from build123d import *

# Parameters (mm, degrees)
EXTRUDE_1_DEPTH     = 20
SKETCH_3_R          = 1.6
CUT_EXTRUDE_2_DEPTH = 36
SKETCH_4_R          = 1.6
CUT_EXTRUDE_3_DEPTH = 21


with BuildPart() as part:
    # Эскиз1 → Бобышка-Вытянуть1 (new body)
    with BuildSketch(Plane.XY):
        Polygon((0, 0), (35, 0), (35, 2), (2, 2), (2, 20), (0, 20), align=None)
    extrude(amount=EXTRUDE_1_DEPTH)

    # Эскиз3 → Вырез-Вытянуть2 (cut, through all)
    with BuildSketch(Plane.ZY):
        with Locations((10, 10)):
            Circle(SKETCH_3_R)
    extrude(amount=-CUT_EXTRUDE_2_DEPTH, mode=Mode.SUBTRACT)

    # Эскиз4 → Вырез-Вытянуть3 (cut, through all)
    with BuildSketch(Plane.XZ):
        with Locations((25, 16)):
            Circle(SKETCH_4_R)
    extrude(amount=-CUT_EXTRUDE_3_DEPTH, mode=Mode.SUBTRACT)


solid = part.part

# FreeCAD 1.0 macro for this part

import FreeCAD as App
import Part
import Sketcher
from FreeCAD import Vector


def add_polygon(sketch, points):
    """Adds a closed chain of lines whose ends are joined by coincident constraints."""
    first, n = sketch.GeometryCount, len(points)
    for a, b in zip(points, points[1:] + points[:1]):
        sketch.addGeometry(Part.LineSegment(App.Vector(*a, 0), App.Vector(*b, 0)), False)
    for i in range(n):
        sketch.addConstraint(Sketcher.Constraint("Coincident", first + i, 2, first + (i + 1) % n, 1))

doc = App.newDocument("Part")
params = doc.addObject("Spreadsheet::Sheet", "Params")
for row, (alias, value) in enumerate([
    ("sketch1_width", "35 mm"),
    ("sketch1_width2", "33 mm"),
    ("sketch1_height", "18 mm"),
    ("pad1_length", "20 mm"),
    ("sketch2_diameter", "3.2 mm"),
    ("sketch3_diameter", "3.2 mm"),
], start=1):
    params.set(f"A{row}", alias)
    params.set(f"B{row}", "=" + value)
    params.setAlias(f"B{row}", alias)

body = doc.addObject("PartDesign::Body", "Body")

# Sketch on XY plane
sketch1 = doc.addObject("Sketcher::SketchObject", "Sketch")
body.addObject(sketch1)
sketch1.AttachmentSupport = (doc.XY_Plane, [""])
sketch1.MapMode = "FlatFace"
add_polygon(sketch1, [(0, 0), (35, 0), (35, 2), (2, 2), (2, 20), (0, 20)])  # lines 0-5
sketch1.addConstraint([
    Sketcher.Constraint("Horizontal", 0),
    Sketcher.Constraint("Vertical", 1),
    Sketcher.Constraint("Horizontal", 2),
    Sketcher.Constraint("Vertical", 3),
    Sketcher.Constraint("Horizontal", 4),
    Sketcher.Constraint("Vertical", 5),
    Sketcher.Constraint("Coincident", 5, 2, -1, 1),
    Sketcher.Constraint("Equal", 4, 1),
    Sketcher.Constraint("DistanceX", 0, 1, 0, 2, 35.0),
    Sketcher.Constraint("DistanceX", 2, 2, 2, 1, 33.0),
    Sketcher.Constraint("DistanceY", 3, 1, 3, 2, 18.0),
])
sketch1.setExpression("Constraints[14]", "Params.sketch1_width")
sketch1.setExpression("Constraints[15]", "Params.sketch1_width2")
sketch1.setExpression("Constraints[16]", "Params.sketch1_height")
pad1 = doc.addObject("PartDesign::Pad", "Pad")
body.addObject(pad1)
pad1.Profile = sketch1
pad1.setExpression("Length", "Params.pad1_length")

# Sketch on YZ plane
sketch2 = doc.addObject("Sketcher::SketchObject", "Sketch001")
body.addObject(sketch2)
sketch2.AttachmentSupport = (doc.YZ_Plane, [""])
sketch2.MapMode = "FlatFace"
sketch2.addGeometry(Part.Circle(Vector(10, 10, 0), Vector(0, 0, 1), 1.6), False)
sketch2.addConstraint([
    Sketcher.Constraint("Diameter", 0, 3.2),
    Sketcher.Constraint("DistanceX", -1, 1, 0, 3, 10.0),
    Sketcher.Constraint("DistanceY", -1, 1, 0, 3, 10.0),
])
sketch2.setExpression("Constraints[0]", "Params.sketch2_diameter")
pocket1 = doc.addObject("PartDesign::Pocket", "Pocket")
body.addObject(pocket1)
pocket1.Profile = sketch2
pocket1.Type = "ThroughAll"
pocket1.Reversed = True

# Sketch on XZ plane
sketch3 = doc.addObject("Sketcher::SketchObject", "Sketch002")
body.addObject(sketch3)
sketch3.AttachmentSupport = (doc.XZ_Plane, [""])
sketch3.MapMode = "FlatFace"
sketch3.addGeometry(Part.Circle(Vector(25, 16, 0), Vector(0, 0, 1), 1.6), False)
sketch3.addConstraint([
    Sketcher.Constraint("Diameter", 0, 3.2),
    Sketcher.Constraint("DistanceX", -1, 1, 0, 3, 25.0),
    Sketcher.Constraint("DistanceY", -1, 1, 0, 3, 16.0),
])
sketch3.setExpression("Constraints[0]", "Params.sketch3_diameter")
pocket2 = doc.addObject("PartDesign::Pocket", "Pocket001")
body.addObject(pocket2)
pocket2.Profile = sketch3
pocket2.Type = "ThroughAll"

doc.recompute()
